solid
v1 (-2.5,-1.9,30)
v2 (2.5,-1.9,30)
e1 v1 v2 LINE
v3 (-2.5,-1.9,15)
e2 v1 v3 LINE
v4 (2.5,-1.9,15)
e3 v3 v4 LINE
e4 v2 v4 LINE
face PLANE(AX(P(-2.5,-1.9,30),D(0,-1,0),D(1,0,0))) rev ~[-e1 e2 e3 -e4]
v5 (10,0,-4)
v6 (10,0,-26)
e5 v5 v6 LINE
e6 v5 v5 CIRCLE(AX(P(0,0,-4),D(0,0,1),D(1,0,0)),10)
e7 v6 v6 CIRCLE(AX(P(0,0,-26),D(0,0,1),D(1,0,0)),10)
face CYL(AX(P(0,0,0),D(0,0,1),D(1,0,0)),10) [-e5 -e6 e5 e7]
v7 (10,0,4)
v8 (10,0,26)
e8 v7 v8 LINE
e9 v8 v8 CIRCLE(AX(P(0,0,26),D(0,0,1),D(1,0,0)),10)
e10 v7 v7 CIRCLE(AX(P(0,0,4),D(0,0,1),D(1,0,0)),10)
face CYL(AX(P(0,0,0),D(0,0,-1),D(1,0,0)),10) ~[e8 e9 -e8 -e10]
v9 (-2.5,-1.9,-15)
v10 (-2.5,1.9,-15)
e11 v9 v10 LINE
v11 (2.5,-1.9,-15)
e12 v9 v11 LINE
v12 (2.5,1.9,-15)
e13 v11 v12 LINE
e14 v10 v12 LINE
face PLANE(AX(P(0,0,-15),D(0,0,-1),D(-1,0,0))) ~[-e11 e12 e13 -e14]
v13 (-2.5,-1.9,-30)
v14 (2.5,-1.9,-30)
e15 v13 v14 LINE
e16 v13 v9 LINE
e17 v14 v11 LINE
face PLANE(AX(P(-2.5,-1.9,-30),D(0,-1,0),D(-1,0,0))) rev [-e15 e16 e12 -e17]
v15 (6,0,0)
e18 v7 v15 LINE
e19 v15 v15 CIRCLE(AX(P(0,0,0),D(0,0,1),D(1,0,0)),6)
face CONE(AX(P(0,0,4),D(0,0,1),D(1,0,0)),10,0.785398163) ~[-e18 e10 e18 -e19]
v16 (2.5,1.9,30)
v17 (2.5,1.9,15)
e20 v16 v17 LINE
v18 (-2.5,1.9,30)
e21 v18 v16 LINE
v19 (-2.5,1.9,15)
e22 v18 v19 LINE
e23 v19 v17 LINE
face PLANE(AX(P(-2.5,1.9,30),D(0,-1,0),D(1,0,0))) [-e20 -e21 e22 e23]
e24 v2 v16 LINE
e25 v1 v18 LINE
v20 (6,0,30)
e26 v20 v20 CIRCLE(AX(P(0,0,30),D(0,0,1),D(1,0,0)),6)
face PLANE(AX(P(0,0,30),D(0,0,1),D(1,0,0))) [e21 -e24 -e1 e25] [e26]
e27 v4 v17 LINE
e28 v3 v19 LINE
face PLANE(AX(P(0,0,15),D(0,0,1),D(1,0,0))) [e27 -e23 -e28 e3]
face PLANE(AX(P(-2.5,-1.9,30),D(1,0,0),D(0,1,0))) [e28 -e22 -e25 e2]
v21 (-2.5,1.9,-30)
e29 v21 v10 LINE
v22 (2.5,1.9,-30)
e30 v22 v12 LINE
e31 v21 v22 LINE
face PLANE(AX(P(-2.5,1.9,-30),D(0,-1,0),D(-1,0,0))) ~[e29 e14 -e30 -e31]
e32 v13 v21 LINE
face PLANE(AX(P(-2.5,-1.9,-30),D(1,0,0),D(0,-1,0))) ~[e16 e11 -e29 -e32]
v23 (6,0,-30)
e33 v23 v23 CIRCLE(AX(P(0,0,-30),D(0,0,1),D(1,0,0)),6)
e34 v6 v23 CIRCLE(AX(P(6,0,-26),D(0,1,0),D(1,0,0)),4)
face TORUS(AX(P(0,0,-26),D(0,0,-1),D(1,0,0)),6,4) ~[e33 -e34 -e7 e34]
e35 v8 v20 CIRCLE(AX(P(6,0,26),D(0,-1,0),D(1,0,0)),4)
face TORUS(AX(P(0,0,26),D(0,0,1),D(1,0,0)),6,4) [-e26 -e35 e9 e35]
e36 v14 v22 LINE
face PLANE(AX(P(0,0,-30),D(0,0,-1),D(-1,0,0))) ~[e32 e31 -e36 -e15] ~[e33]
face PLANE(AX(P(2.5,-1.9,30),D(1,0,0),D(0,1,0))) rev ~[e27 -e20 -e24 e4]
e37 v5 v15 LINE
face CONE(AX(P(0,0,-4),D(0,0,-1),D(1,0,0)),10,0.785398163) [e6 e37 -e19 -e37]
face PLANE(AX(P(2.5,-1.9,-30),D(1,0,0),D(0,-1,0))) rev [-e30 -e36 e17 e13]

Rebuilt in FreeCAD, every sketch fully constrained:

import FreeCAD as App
import Part
import Sketcher
from FreeCAD import Vector
Q = App.Units.Quantity


def edges_at(feature, points):
    """Names of the edges that pass closest to the given points."""
    edges = feature.Shape.Edges
    near = lambda p: min(range(len(edges)), key=lambda i: edges[i].distToShape(Part.Vertex(*p))[0])
    return sorted({f"Edge{near(p) + 1}" for p in points})


def add_polygon(sketch, points):
    """Adds a closed chain of lines whose ends are joined by coincident constraints."""
    first, n = sketch.GeometryCount, len(points)
    for a, b in zip(points, points[1:] + points[:1]):
        sketch.addGeometry(Part.LineSegment(App.Vector(*a, 0), App.Vector(*b, 0)), False)
    for i in range(n):
        sketch.addConstraint(Sketcher.Constraint("Coincident", first + i, 2, first + (i + 1) % n, 1))

doc = App.newDocument("Part")
body = doc.addObject("PartDesign::Body", "Body")

# Sketch on XY plane
sketch1 = body.newObject("Sketcher::SketchObject", "Sketch")
sketch1.AttachmentSupport = (doc.getObject("XY_Plane"), [""])
sketch1.MapMode = "FlatFace"
sketch1.addGeometry(Part.Circle(Vector(0, 0, 0), Vector(0, 0, 1), 10), False)
sketch1.addConstraint(Sketcher.Constraint("Coincident", 0, 3, -1, 1))
sketch1.addConstraint(Sketcher.Constraint("Diameter", 0, Q("20 mm")))
pad1 = body.newObject("PartDesign::Pad", "Pad")
pad1.Profile = sketch1
pad1.Length = 30

# Sketch on XY plane
sketch2 = body.newObject("Sketcher::SketchObject", "Sketch001")
sketch2.AttachmentSupport = (doc.getObject("XY_Plane"), [""])
sketch2.MapMode = "FlatFace"
sketch2.AttachmentOffset = App.Placement(Vector(0, 0, 30), App.Rotation())
add_polygon(sketch2, [(-2.5, 1.9), (-2.5, -1.9), (2.5, -1.9), (2.5, 1.9)])  # lines 0-3
sketch2.addConstraint(Sketcher.Constraint("Vertical", 0))
sketch2.addConstraint(Sketcher.Constraint("Horizontal", 1))
sketch2.addConstraint(Sketcher.Constraint("Vertical", 2))
sketch2.addConstraint(Sketcher.Constraint("Horizontal", 3))
sketch2.addConstraint(Sketcher.Constraint("Symmetric", 0, 2, 2, 2, -1, 1))
sketch2.addConstraint(Sketcher.Constraint("DistanceX", 1, 1, 1, 2, Q("5 mm")))
sketch2.addConstraint(Sketcher.Constraint("DistanceY", 0, 2, 0, 1, Q("3.8 mm")))
pocket1 = body.newObject("PartDesign::Pocket", "Pocket")
pocket1.Profile = sketch2
pocket1.Length = 15
doc.recompute()

fillet = body.newObject("PartDesign::Fillet", "Fillet")
fillet.Base = (pocket1, edges_at(pocket1, [(-10, 0, 30)]))
fillet.Radius = 4
doc.recompute()

chamfer = body.newObject("PartDesign::Chamfer", "Chamfer")
chamfer.Base = (fillet, edges_at(fillet, [(-10, 0, 0)]))
chamfer.Size = 4
body2 = doc.addObject("PartDesign::Body", "Body001")
doc.recompute()

body2.BaseFeature = body
doc.recompute()

mirroring = doc.addObject("Part::Mirroring", "Mirroring")
mirroring.Source = body
mirroring.Base = Vector(0, 0, 0)
mirroring.Normal = Vector(0, 0, -1)
body3 = doc.addObject("PartDesign::Body", "Body002")
body3.BaseFeature = mirroring
boolean = body2.newObject("PartDesign::Boolean", "Boolean")
boolean.Type = "Fuse"
boolean.addObjects([body3])
doc.recompute()
mirroring.Visibility = False

doc.recompute()
